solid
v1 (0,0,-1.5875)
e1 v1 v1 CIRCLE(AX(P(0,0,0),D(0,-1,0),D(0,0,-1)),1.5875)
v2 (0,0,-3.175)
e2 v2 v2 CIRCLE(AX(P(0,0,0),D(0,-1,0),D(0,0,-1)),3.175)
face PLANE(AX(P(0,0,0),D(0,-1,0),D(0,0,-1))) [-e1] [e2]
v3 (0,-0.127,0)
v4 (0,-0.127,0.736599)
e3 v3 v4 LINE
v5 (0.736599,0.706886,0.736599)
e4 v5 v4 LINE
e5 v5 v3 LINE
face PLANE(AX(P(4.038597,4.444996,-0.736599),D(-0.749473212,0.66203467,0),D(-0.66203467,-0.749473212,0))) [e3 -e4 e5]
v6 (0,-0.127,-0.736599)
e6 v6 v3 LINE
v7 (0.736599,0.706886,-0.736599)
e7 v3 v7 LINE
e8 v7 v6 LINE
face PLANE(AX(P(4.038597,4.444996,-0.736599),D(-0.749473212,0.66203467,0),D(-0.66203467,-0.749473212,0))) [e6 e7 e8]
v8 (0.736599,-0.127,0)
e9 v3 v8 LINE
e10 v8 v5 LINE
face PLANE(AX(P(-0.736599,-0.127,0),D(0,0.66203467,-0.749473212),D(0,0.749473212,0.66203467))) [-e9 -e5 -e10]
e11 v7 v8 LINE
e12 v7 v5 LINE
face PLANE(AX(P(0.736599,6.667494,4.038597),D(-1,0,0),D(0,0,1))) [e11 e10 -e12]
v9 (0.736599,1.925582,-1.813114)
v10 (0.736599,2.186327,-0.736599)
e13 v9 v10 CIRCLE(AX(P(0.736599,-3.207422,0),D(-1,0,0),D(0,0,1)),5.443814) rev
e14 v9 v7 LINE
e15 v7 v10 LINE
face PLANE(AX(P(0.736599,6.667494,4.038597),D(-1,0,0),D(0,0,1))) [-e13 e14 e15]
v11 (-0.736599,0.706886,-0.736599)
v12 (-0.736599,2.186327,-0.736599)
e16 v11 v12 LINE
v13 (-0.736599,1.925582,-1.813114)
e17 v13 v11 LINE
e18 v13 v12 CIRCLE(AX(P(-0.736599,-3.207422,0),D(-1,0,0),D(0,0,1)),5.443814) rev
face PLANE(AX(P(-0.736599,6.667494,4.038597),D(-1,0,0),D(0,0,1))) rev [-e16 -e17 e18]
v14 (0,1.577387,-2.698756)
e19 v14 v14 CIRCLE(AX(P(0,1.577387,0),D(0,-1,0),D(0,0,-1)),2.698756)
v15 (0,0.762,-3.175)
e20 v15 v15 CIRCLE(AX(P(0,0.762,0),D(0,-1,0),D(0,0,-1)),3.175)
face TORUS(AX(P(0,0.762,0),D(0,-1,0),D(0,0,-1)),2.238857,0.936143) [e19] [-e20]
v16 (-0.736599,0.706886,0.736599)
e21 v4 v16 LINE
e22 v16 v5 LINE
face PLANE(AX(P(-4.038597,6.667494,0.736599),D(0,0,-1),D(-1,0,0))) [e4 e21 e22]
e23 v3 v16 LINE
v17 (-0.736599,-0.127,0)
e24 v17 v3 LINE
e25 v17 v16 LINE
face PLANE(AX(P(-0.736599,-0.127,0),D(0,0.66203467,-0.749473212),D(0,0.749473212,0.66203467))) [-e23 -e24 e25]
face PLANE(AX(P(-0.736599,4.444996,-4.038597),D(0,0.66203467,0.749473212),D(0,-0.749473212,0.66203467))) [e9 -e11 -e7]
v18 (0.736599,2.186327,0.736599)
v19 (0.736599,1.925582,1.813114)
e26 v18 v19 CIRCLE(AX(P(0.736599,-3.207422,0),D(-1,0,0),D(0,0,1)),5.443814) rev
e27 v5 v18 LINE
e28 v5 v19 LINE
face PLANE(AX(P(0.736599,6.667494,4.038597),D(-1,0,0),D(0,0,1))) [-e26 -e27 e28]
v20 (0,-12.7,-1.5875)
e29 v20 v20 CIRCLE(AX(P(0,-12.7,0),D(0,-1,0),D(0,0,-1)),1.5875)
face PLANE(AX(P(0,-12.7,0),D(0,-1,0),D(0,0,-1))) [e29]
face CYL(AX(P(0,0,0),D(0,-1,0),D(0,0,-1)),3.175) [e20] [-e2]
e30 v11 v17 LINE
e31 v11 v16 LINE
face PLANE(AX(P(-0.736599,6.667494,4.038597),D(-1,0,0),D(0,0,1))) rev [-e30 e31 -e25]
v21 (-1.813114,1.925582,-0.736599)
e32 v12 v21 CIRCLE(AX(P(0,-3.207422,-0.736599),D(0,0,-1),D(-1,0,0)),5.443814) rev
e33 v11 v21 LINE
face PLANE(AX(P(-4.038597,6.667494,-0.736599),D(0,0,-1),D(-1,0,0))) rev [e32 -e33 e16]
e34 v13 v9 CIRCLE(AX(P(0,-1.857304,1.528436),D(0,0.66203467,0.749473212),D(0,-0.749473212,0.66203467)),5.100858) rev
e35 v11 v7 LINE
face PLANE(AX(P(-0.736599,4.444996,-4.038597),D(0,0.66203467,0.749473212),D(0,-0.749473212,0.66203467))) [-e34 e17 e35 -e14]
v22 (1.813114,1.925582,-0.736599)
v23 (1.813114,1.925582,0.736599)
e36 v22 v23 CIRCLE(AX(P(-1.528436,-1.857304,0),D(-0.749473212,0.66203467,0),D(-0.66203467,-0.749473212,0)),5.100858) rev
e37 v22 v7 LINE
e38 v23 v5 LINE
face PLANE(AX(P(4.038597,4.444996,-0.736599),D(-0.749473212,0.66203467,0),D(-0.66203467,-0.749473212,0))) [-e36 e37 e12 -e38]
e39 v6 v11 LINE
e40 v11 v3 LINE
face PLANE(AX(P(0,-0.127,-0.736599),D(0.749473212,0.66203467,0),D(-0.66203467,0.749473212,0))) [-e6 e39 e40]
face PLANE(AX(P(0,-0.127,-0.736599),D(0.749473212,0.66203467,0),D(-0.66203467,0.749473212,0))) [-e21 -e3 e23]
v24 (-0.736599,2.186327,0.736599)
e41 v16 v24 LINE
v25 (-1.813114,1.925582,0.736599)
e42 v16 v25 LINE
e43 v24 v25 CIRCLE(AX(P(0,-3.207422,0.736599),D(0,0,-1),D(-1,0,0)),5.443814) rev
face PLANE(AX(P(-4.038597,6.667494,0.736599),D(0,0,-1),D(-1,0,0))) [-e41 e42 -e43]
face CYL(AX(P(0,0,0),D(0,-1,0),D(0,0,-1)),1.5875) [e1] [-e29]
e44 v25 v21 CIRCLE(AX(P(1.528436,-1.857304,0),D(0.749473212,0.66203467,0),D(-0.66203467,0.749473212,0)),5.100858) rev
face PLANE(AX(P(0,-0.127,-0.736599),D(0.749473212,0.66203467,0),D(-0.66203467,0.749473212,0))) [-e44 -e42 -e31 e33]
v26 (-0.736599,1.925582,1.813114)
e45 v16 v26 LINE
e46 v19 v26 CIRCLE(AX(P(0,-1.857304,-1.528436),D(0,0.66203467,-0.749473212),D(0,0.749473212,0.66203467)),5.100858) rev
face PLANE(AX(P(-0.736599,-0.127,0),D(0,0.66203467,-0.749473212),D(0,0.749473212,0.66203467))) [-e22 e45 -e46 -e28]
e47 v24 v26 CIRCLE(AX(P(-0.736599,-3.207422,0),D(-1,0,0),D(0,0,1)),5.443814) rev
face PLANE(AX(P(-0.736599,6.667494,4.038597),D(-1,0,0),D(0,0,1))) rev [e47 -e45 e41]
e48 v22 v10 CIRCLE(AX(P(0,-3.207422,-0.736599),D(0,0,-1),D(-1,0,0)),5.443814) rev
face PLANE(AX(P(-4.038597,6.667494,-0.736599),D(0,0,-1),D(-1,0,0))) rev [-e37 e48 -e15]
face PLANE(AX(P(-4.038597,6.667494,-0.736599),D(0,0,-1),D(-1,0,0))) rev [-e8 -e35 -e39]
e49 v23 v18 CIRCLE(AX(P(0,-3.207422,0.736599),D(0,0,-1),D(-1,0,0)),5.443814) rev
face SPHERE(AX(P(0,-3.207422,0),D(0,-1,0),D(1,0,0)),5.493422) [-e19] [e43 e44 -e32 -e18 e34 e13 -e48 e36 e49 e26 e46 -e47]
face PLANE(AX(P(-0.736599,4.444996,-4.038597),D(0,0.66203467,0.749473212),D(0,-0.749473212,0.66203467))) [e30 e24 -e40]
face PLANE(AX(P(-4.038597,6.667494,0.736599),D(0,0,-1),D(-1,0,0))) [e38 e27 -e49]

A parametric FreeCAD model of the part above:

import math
import FreeCAD as App
import Part
import Sketcher
Q = App.Units.Quantity

doc = App.newDocument("Part")
body = doc.addObject("PartDesign::Body", "Body")

# Sketch on XY plane
sketch1 = doc.addObject("Sketcher::SketchObject", "Sketch")
body.addObject(sketch1)
sketch1.AttachmentSupport = (doc.XY_Plane, [""])
sketch1.MapMode = "FlatFace"
sketch1.addGeometry([
    Part.LineSegment(App.Vector(0, 0, 0), App.Vector(3.175, 0, 0)),  # 0
    Part.LineSegment(App.Vector(3.175, 0, 0), App.Vector(3.175, 0.762, 0)),  # 1
    Part.ArcOfCircle(Part.Circle(App.Vector(2.238857, 0.762, 0), App.Vector(0, 0, 1), 0.936143), math.radians(0), math.radians(60.575877)),  # 2
    Part.ArcOfCircle(Part.Circle(App.Vector(0, -3.207422, 0), App.Vector(0, 0, 1), 5.493422), math.radians(60.575877), math.radians(90)),  # 3
    Part.LineSegment(App.Vector(0, 2.286, 0), App.Vector(0, 0, 0)),  # 4
], False)
sketch1.addConstraint([
    Sketcher.Constraint("Coincident", 0, 2, 1, 1),
    Sketcher.Constraint("Tangent", 1, 2, 2, 1),
    Sketcher.Constraint("Tangent", 2, 2, 3, 1),
    Sketcher.Constraint("Coincident", 3, 2, 4, 1),
    Sketcher.Constraint("Coincident", 4, 2, 0, 1),
    Sketcher.Constraint("Horizontal", 0),
    Sketcher.Constraint("Vertical", 1),
    Sketcher.Constraint("Vertical", 4),
    Sketcher.Constraint("Coincident", 4, 2, -1, 1),
    Sketcher.Constraint("PointOnObject", 3, 3, -2),
    Sketcher.Constraint("DistanceY", 1, 1, 1, 2, Q("0.03 in")),
    Sketcher.Constraint("DistanceY", 4, 2, 4, 1, Q("0.09 in")),
    Sketcher.Constraint("DistanceX", 0, 1, 0, 2, Q("0.125 in")),
    Sketcher.Constraint("Radius", 2, 0.936143),
])
revolution = doc.addObject("PartDesign::Revolution", "Revolution")
body.addObject(revolution)
revolution.Profile = sketch1
revolution.ReferenceAxis = (sketch1, ["V_Axis"])
revolution.Angle = 360

# Sketch on XY plane
sketch2 = doc.addObject("Sketcher::SketchObject", "Sketch001")
body.addObject(sketch2)
sketch2.AttachmentSupport = (doc.XY_Plane, [""])
sketch2.MapMode = "FlatFace"
sketch2.addGeometry([
    Part.LineSegment(App.Vector(0, 0, 0), App.Vector(0, -12.7, 0)),
    Part.LineSegment(App.Vector(0, -12.7, 0), App.Vector(1.5875, -12.7, 0)),
    Part.LineSegment(App.Vector(1.5875, -12.7, 0), App.Vector(1.5875, 0, 0)),
    Part.LineSegment(App.Vector(1.5875, 0, 0), App.Vector(0, 0, 0)),
], False)
sketch2.addConstraint([
    Sketcher.Constraint("Coincident", 0, 2, 1, 1),
    Sketcher.Constraint("Coincident", 1, 2, 2, 1),
    Sketcher.Constraint("Coincident", 2, 2, 3, 1),
    Sketcher.Constraint("Coincident", 3, 2, 0, 1),
    Sketcher.Constraint("Vertical", 0),
    Sketcher.Constraint("Horizontal", 1),
    Sketcher.Constraint("Vertical", 2),
    Sketcher.Constraint("Horizontal", 3),
    Sketcher.Constraint("Coincident", 3, 2, -1, 1),
    Sketcher.Constraint("DistanceY", 0, 2, 0, 1, Q("0.5 in")),
    Sketcher.Constraint("DistanceX", 1, 1, 1, 2, Q("0.0625 in")),
])
revolution2 = doc.addObject("PartDesign::Revolution", "Revolution001")
body.addObject(revolution2)
revolution2.Profile = sketch2
revolution2.ReferenceAxis = (sketch2, ["V_Axis"])
revolution2.Angle = 360

# Sketch on XY plane
sketch3 = doc.addObject("Sketcher::SketchObject", "Sketch002")
body.addObject(sketch3)
sketch3.AttachmentSupport = (doc.XY_Plane, [""])
sketch3.MapMode = "FlatFace"
sketch3.addGeometry([
    Part.LineSegment(App.Vector(4.038597, 6.667494, 0), App.Vector(-4.038597, 6.667494, 0)),  # 0
    Part.LineSegment(App.Vector(-4.038597, 6.667494, 0), App.Vector(-4.038597, 4.444996, 0)),  # 1
    Part.LineSegment(App.Vector(-4.038597, 4.444996, 0), App.Vector(0, -0.127, 0)),  # 2
    Part.LineSegment(App.Vector(0, -0.127, 0), App.Vector(4.038597, 4.444996, 0)),  # 3
    Part.LineSegment(App.Vector(4.038597, 4.444996, 0), App.Vector(4.038597, 6.667494, 0)),  # 4
], False)
sketch3.addConstraint([
    Sketcher.Constraint("Coincident", 0, 2, 1, 1),
    Sketcher.Constraint("Coincident", 1, 2, 2, 1),
    Sketcher.Constraint("Coincident", 2, 2, 3, 1),
    Sketcher.Constraint("Coincident", 3, 2, 4, 1),
    Sketcher.Constraint("Coincident", 4, 2, 0, 1),
    Sketcher.Constraint("Horizontal", 0),
    Sketcher.Constraint("Vertical", 1),
    Sketcher.Constraint("Vertical", 4),
    Sketcher.Constraint("Symmetric", 1, 2, 3, 2, -2),
    Sketcher.Constraint("PointOnObject", 2, 2, -2),
    Sketcher.Constraint("DistanceY", 2, 2, 1, 2, Q("0.1799998 in")),
    Sketcher.Constraint("DistanceY", 1, 2, 1, 1, Q("0.0874999 in")),
    Sketcher.Constraint("DistanceX", 0, 2, -1, 1, Q("0.1589999 in")),
    Sketcher.Constraint("DistanceY", -1, 1, 1, 2, Q("0.1749998 in")),
])
pocket1 = doc.addObject("PartDesign::Pocket", "Pocket")
body.addObject(pocket1)
pocket1.Profile = sketch3
pocket1.Length = Q("0.0579999 in")
pocket1.Midplane = True

# Sketch on YZ plane
sketch4 = doc.addObject("Sketcher::SketchObject", "Sketch003")
body.addObject(sketch4)
sketch4.AttachmentSupport = (doc.YZ_Plane, [""])
sketch4.MapMode = "FlatFace"
sketch4.addGeometry([
    Part.LineSegment(App.Vector(6.667494, -4.038597, 0), App.Vector(6.667494, 4.038597, 0)),  # 0
    Part.LineSegment(App.Vector(6.667494, 4.038597, 0), App.Vector(4.444996, 4.038597, 0)),  # 1
    Part.LineSegment(App.Vector(4.444996, 4.038597, 0), App.Vector(-0.127, 0, 0)),  # 2
    Part.LineSegment(App.Vector(-0.127, 0, 0), App.Vector(4.444996, -4.038597, 0)),  # 3
    Part.LineSegment(App.Vector(4.444996, -4.038597, 0), App.Vector(6.667494, -4.038597, 0)),  # 4
], False)
sketch4.addConstraint([
    Sketcher.Constraint("Coincident", 0, 2, 1, 1),
    Sketcher.Constraint("Coincident", 1, 2, 2, 1),
    Sketcher.Constraint("Coincident", 2, 2, 3, 1),
    Sketcher.Constraint("Coincident", 3, 2, 4, 1),
    Sketcher.Constraint("Coincident", 4, 2, 0, 1),
    Sketcher.Constraint("Vertical", 0),
    Sketcher.Constraint("Horizontal", 1),
    Sketcher.Constraint("Horizontal", 4),
    Sketcher.Constraint("Symmetric", 1, 2, 3, 2, -1),
    Sketcher.Constraint("PointOnObject", 2, 2, -1),
    Sketcher.Constraint("DistanceX", 2, 2, 1, 2, Q("0.1799998 in")),
    Sketcher.Constraint("DistanceX", 1, 2, 1, 1, Q("0.0874999 in")),
    Sketcher.Constraint("DistanceY", -1, 1, 0, 2, Q("0.1589999 in")),
    Sketcher.Constraint("DistanceX", -1, 1, 1, 2, Q("0.1749998 in")),
])
pocket2 = doc.addObject("PartDesign::Pocket", "Pocket001")
body.addObject(pocket2)
pocket2.Profile = sketch4
pocket2.Length = Q("0.0579999 in")
pocket2.Midplane = True

doc.recompute()
